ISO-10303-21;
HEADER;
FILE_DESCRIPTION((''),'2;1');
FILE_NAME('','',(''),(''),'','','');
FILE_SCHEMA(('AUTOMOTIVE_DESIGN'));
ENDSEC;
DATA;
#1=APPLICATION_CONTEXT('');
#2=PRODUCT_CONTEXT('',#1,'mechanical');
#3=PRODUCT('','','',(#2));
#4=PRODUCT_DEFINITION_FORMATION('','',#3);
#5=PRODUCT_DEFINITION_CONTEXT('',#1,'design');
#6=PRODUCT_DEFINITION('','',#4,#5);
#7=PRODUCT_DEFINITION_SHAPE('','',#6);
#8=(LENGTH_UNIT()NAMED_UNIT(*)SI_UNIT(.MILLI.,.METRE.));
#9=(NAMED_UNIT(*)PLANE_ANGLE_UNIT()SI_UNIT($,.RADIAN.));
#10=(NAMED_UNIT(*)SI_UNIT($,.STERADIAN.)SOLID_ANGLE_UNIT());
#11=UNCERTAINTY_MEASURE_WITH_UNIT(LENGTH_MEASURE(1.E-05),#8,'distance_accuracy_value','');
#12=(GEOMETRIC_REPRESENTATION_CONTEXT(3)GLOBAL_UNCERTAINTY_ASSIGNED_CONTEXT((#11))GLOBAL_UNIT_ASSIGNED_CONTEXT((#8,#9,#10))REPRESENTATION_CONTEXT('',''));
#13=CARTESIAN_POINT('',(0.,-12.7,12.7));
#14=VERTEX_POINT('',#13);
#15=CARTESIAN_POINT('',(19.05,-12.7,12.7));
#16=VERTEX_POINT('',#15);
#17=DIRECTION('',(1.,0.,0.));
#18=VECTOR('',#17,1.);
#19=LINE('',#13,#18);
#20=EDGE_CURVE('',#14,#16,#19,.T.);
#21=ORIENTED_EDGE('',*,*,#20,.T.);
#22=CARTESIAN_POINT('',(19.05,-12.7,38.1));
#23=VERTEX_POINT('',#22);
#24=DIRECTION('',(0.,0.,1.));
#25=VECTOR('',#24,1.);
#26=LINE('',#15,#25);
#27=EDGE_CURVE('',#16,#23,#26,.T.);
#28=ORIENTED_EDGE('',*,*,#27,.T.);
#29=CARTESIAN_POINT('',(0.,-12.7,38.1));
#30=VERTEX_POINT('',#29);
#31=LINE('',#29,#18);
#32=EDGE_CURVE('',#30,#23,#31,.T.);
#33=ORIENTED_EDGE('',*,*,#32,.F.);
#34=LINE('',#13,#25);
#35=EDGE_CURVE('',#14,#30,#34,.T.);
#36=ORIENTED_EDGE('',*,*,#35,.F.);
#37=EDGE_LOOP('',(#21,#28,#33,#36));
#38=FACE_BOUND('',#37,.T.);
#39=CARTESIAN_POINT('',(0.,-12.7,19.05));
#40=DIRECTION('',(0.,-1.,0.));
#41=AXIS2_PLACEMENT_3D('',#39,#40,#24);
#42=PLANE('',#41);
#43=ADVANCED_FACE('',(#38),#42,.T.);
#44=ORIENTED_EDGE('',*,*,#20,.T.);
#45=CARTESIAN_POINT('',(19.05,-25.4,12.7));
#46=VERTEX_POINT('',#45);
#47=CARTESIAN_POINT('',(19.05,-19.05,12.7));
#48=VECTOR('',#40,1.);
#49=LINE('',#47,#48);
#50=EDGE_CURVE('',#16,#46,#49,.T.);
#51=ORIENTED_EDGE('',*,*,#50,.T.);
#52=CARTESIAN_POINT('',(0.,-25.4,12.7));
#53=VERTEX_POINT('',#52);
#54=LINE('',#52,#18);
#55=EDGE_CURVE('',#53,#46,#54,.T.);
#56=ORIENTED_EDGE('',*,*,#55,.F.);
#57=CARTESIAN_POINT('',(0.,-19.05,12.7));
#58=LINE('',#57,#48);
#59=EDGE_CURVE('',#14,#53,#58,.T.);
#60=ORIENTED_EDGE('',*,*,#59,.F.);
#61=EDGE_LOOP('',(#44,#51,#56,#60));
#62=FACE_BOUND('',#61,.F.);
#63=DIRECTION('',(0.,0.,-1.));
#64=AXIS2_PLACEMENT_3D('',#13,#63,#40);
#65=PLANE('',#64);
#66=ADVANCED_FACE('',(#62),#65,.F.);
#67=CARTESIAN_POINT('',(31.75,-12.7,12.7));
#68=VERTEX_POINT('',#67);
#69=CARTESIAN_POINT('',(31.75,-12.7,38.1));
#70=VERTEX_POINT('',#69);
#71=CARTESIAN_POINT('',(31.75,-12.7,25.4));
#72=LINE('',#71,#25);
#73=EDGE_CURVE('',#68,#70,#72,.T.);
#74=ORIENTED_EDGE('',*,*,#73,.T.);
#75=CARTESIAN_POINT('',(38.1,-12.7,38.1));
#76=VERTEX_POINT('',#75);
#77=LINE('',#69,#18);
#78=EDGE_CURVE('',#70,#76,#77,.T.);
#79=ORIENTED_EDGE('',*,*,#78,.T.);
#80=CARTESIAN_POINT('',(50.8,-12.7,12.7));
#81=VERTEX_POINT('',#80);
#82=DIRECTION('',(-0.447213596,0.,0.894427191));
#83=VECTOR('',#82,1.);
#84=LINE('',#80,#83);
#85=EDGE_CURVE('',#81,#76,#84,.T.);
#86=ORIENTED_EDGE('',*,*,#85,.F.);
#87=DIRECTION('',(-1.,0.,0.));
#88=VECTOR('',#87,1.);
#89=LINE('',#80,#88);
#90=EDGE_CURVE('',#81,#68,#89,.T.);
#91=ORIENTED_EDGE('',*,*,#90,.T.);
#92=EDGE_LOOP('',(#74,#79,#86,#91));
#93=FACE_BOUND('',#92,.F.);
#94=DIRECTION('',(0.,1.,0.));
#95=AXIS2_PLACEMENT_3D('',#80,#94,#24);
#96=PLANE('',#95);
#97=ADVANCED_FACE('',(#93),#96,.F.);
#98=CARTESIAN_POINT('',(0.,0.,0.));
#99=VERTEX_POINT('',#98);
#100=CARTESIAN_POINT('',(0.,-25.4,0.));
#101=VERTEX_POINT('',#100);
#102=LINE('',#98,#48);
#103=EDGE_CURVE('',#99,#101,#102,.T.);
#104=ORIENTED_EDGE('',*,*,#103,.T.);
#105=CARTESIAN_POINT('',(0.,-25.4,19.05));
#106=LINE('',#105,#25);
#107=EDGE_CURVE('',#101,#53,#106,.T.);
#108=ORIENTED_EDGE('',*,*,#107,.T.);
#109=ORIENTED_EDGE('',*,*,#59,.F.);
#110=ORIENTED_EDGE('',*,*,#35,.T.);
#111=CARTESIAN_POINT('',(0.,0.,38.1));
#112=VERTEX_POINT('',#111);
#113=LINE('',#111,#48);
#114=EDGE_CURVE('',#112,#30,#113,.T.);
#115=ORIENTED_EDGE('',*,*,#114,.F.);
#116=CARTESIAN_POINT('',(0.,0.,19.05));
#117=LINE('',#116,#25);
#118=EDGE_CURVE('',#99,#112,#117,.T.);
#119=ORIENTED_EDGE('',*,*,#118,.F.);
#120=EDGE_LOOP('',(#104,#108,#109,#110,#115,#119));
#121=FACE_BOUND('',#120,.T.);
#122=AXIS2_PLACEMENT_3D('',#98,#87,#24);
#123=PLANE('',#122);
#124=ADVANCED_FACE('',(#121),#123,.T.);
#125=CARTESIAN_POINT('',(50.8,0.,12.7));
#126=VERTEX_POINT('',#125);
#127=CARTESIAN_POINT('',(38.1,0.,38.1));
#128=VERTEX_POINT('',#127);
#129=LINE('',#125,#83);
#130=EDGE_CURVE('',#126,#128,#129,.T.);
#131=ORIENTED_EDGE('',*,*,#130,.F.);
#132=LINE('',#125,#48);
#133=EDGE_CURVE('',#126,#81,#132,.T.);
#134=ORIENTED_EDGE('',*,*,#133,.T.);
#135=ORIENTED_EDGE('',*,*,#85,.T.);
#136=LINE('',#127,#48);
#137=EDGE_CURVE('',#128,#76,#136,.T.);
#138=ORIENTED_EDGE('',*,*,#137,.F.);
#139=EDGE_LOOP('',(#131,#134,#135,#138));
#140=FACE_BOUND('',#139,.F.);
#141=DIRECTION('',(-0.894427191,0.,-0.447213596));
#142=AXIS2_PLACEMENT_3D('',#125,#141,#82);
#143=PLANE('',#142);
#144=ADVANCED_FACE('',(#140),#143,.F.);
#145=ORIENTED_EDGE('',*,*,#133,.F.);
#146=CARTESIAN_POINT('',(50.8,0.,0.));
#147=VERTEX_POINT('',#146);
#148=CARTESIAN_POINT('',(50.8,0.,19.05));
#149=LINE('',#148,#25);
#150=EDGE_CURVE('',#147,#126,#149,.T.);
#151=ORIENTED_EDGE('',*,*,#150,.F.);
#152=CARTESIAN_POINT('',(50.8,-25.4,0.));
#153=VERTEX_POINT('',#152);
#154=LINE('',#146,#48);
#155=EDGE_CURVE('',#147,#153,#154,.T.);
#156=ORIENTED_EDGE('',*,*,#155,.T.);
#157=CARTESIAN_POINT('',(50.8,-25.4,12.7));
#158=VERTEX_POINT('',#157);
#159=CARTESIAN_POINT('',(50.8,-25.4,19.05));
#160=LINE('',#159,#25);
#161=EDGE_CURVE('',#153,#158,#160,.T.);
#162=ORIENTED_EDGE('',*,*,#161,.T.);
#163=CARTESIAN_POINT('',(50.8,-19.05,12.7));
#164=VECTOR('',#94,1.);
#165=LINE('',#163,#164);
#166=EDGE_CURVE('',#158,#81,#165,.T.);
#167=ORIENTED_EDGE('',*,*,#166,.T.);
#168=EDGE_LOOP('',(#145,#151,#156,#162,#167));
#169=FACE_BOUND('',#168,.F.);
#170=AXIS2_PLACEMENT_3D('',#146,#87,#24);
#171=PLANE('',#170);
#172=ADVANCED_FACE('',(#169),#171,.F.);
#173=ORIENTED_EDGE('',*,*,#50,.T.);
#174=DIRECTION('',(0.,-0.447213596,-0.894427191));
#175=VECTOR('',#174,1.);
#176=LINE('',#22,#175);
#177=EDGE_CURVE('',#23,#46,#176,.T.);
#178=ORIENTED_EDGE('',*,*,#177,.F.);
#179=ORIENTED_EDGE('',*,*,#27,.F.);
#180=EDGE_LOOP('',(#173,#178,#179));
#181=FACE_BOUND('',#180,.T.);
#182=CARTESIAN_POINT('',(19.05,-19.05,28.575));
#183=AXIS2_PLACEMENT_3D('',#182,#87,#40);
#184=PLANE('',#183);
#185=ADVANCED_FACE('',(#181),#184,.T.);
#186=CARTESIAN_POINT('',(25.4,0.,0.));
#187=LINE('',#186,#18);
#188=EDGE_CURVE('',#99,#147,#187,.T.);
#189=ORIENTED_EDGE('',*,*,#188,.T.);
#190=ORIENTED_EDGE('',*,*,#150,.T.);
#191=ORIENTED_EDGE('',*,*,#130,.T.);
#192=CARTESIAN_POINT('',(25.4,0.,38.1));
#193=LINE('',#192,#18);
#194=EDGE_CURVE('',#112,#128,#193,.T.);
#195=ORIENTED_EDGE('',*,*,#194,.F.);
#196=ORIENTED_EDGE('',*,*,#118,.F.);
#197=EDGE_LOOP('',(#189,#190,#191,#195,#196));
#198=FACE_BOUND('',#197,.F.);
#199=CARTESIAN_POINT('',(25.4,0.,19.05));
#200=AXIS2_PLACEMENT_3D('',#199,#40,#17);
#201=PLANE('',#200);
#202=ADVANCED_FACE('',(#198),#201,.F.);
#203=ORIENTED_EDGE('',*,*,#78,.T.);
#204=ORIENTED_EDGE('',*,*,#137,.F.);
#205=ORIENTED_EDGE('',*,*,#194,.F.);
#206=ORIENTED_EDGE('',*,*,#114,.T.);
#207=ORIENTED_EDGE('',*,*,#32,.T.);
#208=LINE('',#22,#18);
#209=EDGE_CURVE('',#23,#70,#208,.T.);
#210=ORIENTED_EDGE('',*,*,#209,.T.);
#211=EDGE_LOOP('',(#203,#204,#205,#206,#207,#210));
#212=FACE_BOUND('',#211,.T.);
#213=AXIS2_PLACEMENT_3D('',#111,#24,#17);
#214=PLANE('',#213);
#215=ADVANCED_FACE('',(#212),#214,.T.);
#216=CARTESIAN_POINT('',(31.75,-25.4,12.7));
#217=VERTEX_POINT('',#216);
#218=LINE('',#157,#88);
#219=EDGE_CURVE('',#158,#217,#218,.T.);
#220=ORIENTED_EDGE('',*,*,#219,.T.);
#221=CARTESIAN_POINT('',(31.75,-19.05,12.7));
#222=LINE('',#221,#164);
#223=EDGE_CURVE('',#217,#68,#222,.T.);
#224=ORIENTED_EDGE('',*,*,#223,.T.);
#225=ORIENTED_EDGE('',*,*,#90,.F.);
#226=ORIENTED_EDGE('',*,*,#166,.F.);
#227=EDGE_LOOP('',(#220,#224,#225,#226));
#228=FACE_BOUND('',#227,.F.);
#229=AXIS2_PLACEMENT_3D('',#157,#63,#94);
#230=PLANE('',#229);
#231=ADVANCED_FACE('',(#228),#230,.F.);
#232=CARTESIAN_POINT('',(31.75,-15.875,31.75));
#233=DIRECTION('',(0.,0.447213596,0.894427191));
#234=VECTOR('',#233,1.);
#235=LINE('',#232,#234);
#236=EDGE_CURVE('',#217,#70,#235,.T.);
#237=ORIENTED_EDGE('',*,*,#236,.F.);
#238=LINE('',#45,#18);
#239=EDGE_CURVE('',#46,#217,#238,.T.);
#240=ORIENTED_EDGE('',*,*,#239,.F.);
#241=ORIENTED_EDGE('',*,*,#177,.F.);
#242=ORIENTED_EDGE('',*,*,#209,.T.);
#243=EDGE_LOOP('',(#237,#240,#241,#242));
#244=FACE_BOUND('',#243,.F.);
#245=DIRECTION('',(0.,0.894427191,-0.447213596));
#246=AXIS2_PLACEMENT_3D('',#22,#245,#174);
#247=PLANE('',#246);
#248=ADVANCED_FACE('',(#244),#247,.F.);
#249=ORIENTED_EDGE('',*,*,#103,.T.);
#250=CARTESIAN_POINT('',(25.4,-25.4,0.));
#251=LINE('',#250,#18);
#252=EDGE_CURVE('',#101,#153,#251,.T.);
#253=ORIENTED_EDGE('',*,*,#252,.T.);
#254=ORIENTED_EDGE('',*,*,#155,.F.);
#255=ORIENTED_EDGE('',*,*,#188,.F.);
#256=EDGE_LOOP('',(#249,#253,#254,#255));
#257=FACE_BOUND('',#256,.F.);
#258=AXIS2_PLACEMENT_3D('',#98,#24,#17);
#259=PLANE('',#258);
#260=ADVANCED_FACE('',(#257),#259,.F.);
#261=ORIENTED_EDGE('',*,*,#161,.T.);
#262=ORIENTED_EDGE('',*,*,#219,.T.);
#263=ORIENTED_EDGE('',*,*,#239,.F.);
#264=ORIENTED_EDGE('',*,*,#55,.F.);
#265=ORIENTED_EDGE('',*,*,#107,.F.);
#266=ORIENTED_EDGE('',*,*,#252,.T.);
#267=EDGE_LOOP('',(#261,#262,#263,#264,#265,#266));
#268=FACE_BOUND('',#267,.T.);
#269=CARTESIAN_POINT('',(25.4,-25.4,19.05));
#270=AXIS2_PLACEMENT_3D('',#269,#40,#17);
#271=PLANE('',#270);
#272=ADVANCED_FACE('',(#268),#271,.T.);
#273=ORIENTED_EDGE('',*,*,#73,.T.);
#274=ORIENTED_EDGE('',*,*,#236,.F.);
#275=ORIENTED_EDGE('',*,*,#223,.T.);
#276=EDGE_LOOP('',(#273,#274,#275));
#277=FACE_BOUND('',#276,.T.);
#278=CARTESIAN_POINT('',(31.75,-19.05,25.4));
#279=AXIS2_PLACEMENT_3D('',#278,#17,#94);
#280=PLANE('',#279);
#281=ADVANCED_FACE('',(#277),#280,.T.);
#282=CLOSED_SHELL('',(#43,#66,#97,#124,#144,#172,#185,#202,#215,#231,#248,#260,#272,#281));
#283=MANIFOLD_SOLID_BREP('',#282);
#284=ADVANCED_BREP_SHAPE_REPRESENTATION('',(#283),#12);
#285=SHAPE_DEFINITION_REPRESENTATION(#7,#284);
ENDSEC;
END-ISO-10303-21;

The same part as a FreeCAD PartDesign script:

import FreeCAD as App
import Part
import Sketcher
Q = App.Units.Quantity

doc = App.newDocument("Part")
body = doc.addObject("PartDesign::Body", "Body")

# Sketch on XZ plane
sketch1 = body.newObject("Sketcher::SketchObject", "Sketch")
sketch1.AttachmentSupport = (doc.getObject("XZ_Plane"), [""])
sketch1.MapMode = "FlatFace"
sketch1.addGeometry([
    Part.LineSegment(App.Vector(0, 38, 0), App.Vector(0, 0, 0)),
    Part.LineSegment(App.Vector(0, 0, 0), App.Vector(51, 0, 0)),
    Part.LineSegment(App.Vector(51, 0, 0), App.Vector(51, 38, 0)),
    Part.LineSegment(App.Vector(51, 38, 0), App.Vector(0, 38, 0)),
], False)
sketch1.addConstraint([
    Sketcher.Constraint("Coincident", 0, 2, 1, 1),
    Sketcher.Constraint("Coincident", 1, 2, 2, 1),
    Sketcher.Constraint("Coincident", 2, 2, 3, 1),
    Sketcher.Constraint("Coincident", 3, 2, 0, 1),
    Sketcher.Constraint("Vertical", 0),
    Sketcher.Constraint("Horizontal", 1),
    Sketcher.Constraint("Vertical", 2),
    Sketcher.Constraint("Horizontal", 3),
    Sketcher.Constraint("Coincident", 0, 2, -1, 1),
    Sketcher.Constraint("DistanceX", 1, 1, 1, 2, Q("2 in")),
    Sketcher.Constraint("DistanceY", 0, 2, 0, 1, Q("1.5 in")),
])
pad1 = body.newObject("PartDesign::Pad", "Pad")
pad1.Profile = sketch1
pad1.Length = Q("1 in")

# Sketch on YZ plane
sketch2 = body.newObject("Sketcher::SketchObject", "Sketch001")
sketch2.AttachmentSupport = (doc.getObject("YZ_Plane"), [""])
sketch2.MapMode = "FlatFace"
sketch2.addGeometry([
    Part.LineSegment(App.Vector(-13, 38, 0), App.Vector(-13, 19, 0)),
    Part.LineSegment(App.Vector(-13, 19, 0), App.Vector(-25, 19, 0)),
    Part.LineSegment(App.Vector(-25, 19, 0), App.Vector(-25, 38, 0)),
    Part.LineSegment(App.Vector(-25, 38, 0), App.Vector(-13, 38, 0)),
], False)
sketch2.addConstraint([
    Sketcher.Constraint("Coincident", 0, 2, 1, 1),
    Sketcher.Constraint("Coincident", 1, 2, 2, 1),
    Sketcher.Constraint("Coincident", 2, 2, 3, 1),
    Sketcher.Constraint("Coincident", 3, 2, 0, 1),
    Sketcher.Constraint("Vertical", 0),
    Sketcher.Constraint("Horizontal", 1),
    Sketcher.Constraint("Vertical", 2),
    Sketcher.Constraint("Horizontal", 3),
    Sketcher.Constraint("DistanceX", 1, 2, 1, 1, Q("0.5 in")),
    Sketcher.Constraint("DistanceX", 1, 2, -1, 1, Q("1 in")),
    Sketcher.Constraint("DistanceY", 0, 2, 0, 1, Q("0.75 in")),
    Sketcher.Constraint("DistanceY", -1, 1, 2, 2, Q("1.5 in")),
])
pocket1 = body.newObject("PartDesign::Pocket", "Pocket")
pocket1.Profile = sketch2
pocket1.Length = Q("0.75 in")
pocket1.Reversed = True

# Sketch on YZ plane
sketch3 = body.newObject("Sketcher::SketchObject", "Sketch002")
sketch3.AttachmentSupport = (doc.getObject("YZ_Plane"), [""])
sketch3.MapMode = "FlatFace"
sketch3.AttachmentOffset = App.Placement(App.Vector(0, 0, 2 * 25.4), App.Rotation())
sketch3.addGeometry([
    Part.LineSegment(App.Vector(-25, 38, 0), App.Vector(-25, 13, 0)),
    Part.LineSegment(App.Vector(-25, 13, 0), App.Vector(-13, 13, 0)),
    Part.LineSegment(App.Vector(-13, 13, 0), App.Vector(-13, 38, 0)),
    Part.LineSegment(App.Vector(-13, 38, 0), App.Vector(-25, 38, 0)),
], False)
sketch3.addConstraint([
    Sketcher.Constraint("Coincident", 0, 2, 1, 1),
    Sketcher.Constraint("Coincident", 1, 2, 2, 1),
    Sketcher.Constraint("Coincident", 2, 2, 3, 1),
    Sketcher.Constraint("Coincident", 3, 2, 0, 1),
    Sketcher.Constraint("Vertical", 0),
    Sketcher.Constraint("Horizontal", 1),
    Sketcher.Constraint("Vertical", 2),
    Sketcher.Constraint("Horizontal", 3),
    Sketcher.Constraint("DistanceY", 0, 2, 0, 1, Q("1 in")),
    Sketcher.Constraint("DistanceX", 1, 1, 1, 2, Q("0.5 in")),
    Sketcher.Constraint("DistanceX", 0, 2, -1, 1, Q("1 in")),
    Sketcher.Constraint("DistanceY", -1, 1, 0, 2, Q("0.5 in")),
])
pocket2 = body.newObject("PartDesign::Pocket", "Pocket001")
pocket2.Profile = sketch3
pocket2.Length = Q("0.75 in")

# Sketch on YZ plane
sketch4 = body.newObject("Sketcher::SketchObject", "Sketch003")
sketch4.AttachmentSupport = (doc.getObject("YZ_Plane"), [""])
sketch4.MapMode = "FlatFace"
sketch4.addGeometry([
    Part.LineSegment(App.Vector(-13, 19, 0), App.Vector(-13, 13, 0)),
    Part.LineSegment(App.Vector(-13, 13, 0), App.Vector(-25, 13, 0)),
    Part.LineSegment(App.Vector(-25, 13, 0), App.Vector(-25, 19, 0)),
    Part.LineSegment(App.Vector(-25, 19, 0), App.Vector(-13, 19, 0)),
], False)
sketch4.addConstraint([
    Sketcher.Constraint("Coincident", 0, 2, 1, 1),
    Sketcher.Constraint("Coincident", 1, 2, 2, 1),
    Sketcher.Constraint("Coincident", 2, 2, 3, 1),
    Sketcher.Constraint("Coincident", 3, 2, 0, 1),
    Sketcher.Constraint("Vertical", 0),
    Sketcher.Constraint("Horizontal", 1),
    Sketcher.Constraint("Vertical", 2),
    Sketcher.Constraint("Horizontal", 3),
    Sketcher.Constraint("DistanceX", 1, 2, 1, 1, Q("0.5 in")),
    Sketcher.Constraint("DistanceX", 1, 2, -1, 1, Q("1 in")),
    Sketcher.Constraint("DistanceY", 0, 2, 0, 1, Q("0.25 in")),
    Sketcher.Constraint("DistanceY", -1, 1, 0, 2, Q("0.5 in")),
])
pocket3 = body.newObject("PartDesign::Pocket", "Pocket002")
pocket3.Profile = sketch4
pocket3.Length = Q("0.75 in")
pocket3.Reversed = True

# Sketch on YZ plane
sketch5 = body.newObject("Sketcher::SketchObject", "Sketch004")
sketch5.AttachmentSupport = (doc.getObject("YZ_Plane"), [""])
sketch5.MapMode = "FlatFace"
sketch5.AttachmentOffset = App.Placement(App.Vector(0, 0, 0.75 * 25.4), App.Rotation())
sketch5.addGeometry([
    Part.LineSegment(App.Vector(-25, 38, 0), App.Vector(-13, 38, 0)),
    Part.LineSegment(App.Vector(-13, 38, 0), App.Vector(-25, 13, 0)),
    Part.LineSegment(App.Vector(-25, 13, 0), App.Vector(-25, 38, 0)),
], False)
sketch5.addConstraint([
    Sketcher.Constraint("Coincident", 0, 2, 1, 1),
    Sketcher.Constraint("Coincident", 1, 2, 2, 1),
    Sketcher.Constraint("Coincident", 2, 2, 0, 1),
    Sketcher.Constraint("Horizontal", 0),
    Sketcher.Constraint("Vertical", 2),
    Sketcher.Constraint("DistanceY", 2, 1, 2, 2, Q("1 in")),
    Sketcher.Constraint("DistanceX", 0, 1, 0, 2, Q("0.5 in")),
    Sketcher.Constraint("DistanceX", 1, 2, -1, 1, Q("1 in")),
    Sketcher.Constraint("DistanceY", -1, 1, 0, 2, Q("1.5 in")),
])
pocket4 = body.newObject("PartDesign::Pocket", "Pocket003")
pocket4.Profile = sketch5
pocket4.Length = Q("1 in")
pocket4.Reversed = True

# Sketch on XZ plane
sketch6 = body.newObject("Sketcher::SketchObject", "Sketch005")
sketch6.AttachmentSupport = (doc.getObject("XZ_Plane"), [""])
sketch6.MapMode = "FlatFace"
sketch6.addGeometry([
    Part.LineSegment(App.Vector(51, 13, 0), App.Vector(38, 38, 0)),
    Part.LineSegment(App.Vector(38, 38, 0), App.Vector(51, 38, 0)),
    Part.LineSegment(App.Vector(51, 38, 0), App.Vector(51, 13, 0)),
], False)
sketch6.addConstraint([
    Sketcher.Constraint("Coincident", 0, 2, 1, 1),
    Sketcher.Constraint("Coincident", 1, 2, 2, 1),
    Sketcher.Constraint("Coincident", 2, 2, 0, 1),
    Sketcher.Constraint("Horizontal", 1),
    Sketcher.Constraint("Vertical", 2),
    Sketcher.Constraint("DistanceY", 2, 2, 2, 1, Q("1 in")),
    Sketcher.Constraint("DistanceX", 1, 1, 1, 2, Q("0.5 in")),
    Sketcher.Constraint("DistanceX", -1, 1, 1, 2, Q("2 in")),
    Sketcher.Constraint("DistanceY", -1, 1, 0, 2, Q("1.5 in")),
])
pocket5 = body.newObject("PartDesign::Pocket", "Pocket004")
pocket5.Profile = sketch6
pocket5.Length = Q("1 in")
pocket5.Reversed = True

doc.recompute()
